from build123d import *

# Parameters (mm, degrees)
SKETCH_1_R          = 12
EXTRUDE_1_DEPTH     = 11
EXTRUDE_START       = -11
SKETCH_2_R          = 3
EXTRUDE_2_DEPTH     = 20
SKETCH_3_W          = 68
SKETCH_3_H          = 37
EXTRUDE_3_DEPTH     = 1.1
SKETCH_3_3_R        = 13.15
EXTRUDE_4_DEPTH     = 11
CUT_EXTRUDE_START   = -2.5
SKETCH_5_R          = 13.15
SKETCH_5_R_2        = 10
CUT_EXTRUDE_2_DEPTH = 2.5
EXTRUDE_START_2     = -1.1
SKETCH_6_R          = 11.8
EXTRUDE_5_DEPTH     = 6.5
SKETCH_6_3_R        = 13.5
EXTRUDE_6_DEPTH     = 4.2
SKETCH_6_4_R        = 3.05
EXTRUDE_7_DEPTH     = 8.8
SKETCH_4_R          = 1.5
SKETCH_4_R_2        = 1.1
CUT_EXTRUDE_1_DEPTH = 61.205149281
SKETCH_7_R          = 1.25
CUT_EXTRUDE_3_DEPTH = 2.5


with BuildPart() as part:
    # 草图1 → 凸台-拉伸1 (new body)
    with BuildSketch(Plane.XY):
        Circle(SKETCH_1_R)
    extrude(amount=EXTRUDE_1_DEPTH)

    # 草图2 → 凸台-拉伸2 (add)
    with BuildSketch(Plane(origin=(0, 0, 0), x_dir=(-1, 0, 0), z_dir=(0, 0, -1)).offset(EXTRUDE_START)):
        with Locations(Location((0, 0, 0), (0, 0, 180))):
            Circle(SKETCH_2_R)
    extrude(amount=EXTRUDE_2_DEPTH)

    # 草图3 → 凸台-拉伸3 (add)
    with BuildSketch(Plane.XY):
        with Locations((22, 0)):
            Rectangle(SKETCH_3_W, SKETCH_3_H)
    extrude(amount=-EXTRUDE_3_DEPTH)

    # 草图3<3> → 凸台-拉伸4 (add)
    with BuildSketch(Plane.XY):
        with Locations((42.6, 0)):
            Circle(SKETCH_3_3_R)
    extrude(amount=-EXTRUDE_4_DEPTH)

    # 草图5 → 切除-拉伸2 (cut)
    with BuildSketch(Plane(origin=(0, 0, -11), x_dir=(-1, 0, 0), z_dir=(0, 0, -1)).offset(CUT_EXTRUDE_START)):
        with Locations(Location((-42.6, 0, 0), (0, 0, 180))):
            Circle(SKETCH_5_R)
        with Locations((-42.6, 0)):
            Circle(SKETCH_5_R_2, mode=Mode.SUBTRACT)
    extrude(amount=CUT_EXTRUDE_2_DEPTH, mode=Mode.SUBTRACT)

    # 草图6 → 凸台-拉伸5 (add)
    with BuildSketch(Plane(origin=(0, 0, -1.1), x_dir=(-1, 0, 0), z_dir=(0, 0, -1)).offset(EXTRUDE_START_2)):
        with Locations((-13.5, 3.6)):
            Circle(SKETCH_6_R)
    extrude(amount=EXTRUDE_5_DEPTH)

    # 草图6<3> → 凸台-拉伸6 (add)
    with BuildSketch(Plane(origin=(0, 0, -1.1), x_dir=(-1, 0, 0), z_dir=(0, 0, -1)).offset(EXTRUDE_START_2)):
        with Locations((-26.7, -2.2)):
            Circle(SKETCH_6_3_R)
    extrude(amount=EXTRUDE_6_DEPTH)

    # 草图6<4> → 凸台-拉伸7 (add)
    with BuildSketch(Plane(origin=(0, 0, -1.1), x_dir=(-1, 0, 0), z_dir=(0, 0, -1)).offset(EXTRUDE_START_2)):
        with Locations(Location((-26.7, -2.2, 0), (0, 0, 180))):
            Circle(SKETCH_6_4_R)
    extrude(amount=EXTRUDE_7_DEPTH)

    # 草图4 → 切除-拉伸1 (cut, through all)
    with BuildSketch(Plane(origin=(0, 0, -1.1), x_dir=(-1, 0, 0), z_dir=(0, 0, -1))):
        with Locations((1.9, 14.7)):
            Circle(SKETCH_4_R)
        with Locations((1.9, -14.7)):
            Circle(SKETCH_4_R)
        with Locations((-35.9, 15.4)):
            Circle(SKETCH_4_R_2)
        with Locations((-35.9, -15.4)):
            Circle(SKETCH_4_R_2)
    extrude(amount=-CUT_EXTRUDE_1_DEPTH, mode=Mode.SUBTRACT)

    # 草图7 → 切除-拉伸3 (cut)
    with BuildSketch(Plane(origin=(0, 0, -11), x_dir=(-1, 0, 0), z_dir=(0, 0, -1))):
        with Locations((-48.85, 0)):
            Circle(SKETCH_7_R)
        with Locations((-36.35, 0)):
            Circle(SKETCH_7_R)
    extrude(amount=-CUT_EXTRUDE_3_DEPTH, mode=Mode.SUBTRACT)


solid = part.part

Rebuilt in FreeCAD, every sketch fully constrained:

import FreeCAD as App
import Part
import Sketcher

doc = App.newDocument("Part")
body = doc.addObject("PartDesign::Body", "Body")

# Sketch on XY plane
sketch1 = body.newObject("Sketcher::SketchObject", "Sketch")
sketch1.AttachmentSupport = (doc.getObject("XY_Plane"), [""])
sketch1.MapMode = "FlatFace"
sketch1.addGeometry(Part.Circle(App.Vector(0, 0, 0), App.Vector(0, 0, 1), 12), False)
sketch1.addConstraint([
    Sketcher.Constraint("Coincident", 0, 3, -1, 1),
    Sketcher.Constraint("Diameter", 0, 24.0),
])
pad1 = body.newObject("PartDesign::Pad", "Pad")
pad1.Profile = sketch1
pad1.Length = 11

# Sketch on XY plane
sketch2 = body.newObject("Sketcher::SketchObject", "Sketch001")
sketch2.AttachmentSupport = (doc.getObject("XY_Plane"), [""])
sketch2.MapMode = "FlatFace"
sketch2.AttachmentOffset = App.Placement(App.Vector(0, 0, 11), App.Rotation())
sketch2.addGeometry(Part.Circle(App.Vector(0, 0, 0), App.Vector(0, 0, 1), 3), False)
sketch2.addConstraint([
    Sketcher.Constraint("Coincident", 0, 3, -1, 1),
    Sketcher.Constraint("Diameter", 0, 6.0),
])
pad2 = body.newObject("PartDesign::Pad", "Pad001")
pad2.Profile = sketch2
pad2.Length = 20
pad2.Reversed = True

# Sketch on XY plane
sketch3 = body.newObject("Sketcher::SketchObject", "Sketch002")
sketch3.AttachmentSupport = (doc.getObject("XY_Plane"), [""])
sketch3.MapMode = "FlatFace"
sketch3.addGeometry([
    Part.LineSegment(App.Vector(-12, 18, 0), App.Vector(-12, -18, 0)),
    Part.LineSegment(App.Vector(-12, -18, 0), App.Vector(56, -18, 0)),
    Part.LineSegment(App.Vector(56, -18, 0), App.Vector(56, 18, 0)),
    Part.LineSegment(App.Vector(56, 18, 0), App.Vector(-12, 18, 0)),
], False)
sketch3.addConstraint([
    Sketcher.Constraint("Coincident", 0, 2, 1, 1),
    Sketcher.Constraint("Coincident", 1, 2, 2, 1),
    Sketcher.Constraint("Coincident", 2, 2, 3, 1),
    Sketcher.Constraint("Coincident", 3, 2, 0, 1),
    Sketcher.Constraint("Vertical", 0),
    Sketcher.Constraint("Horizontal", 1),
    Sketcher.Constraint("Vertical", 2),
    Sketcher.Constraint("Horizontal", 3),
    Sketcher.Constraint("DistanceX", 1, 1, 1, 2, 68.0),
    Sketcher.Constraint("DistanceY", 0, 2, 0, 1, 37.0),
    Sketcher.Constraint("DistanceX", 0, 2, -1, 1, 12.0),
    Sketcher.Constraint("DistanceY", 0, 2, -1, 1, 18.5),
])
pad3 = body.newObject("PartDesign::Pad", "Pad002")
pad3.Profile = sketch3
pad3.Length = 1.1
pad3.Reversed = True

# Sketch on XY plane
sketch4 = body.newObject("Sketcher::SketchObject", "Sketch003")
sketch4.AttachmentSupport = (doc.getObject("XY_Plane"), [""])
sketch4.MapMode = "FlatFace"
sketch4.addGeometry(Part.Circle(App.Vector(43, 0, 0), App.Vector(0, 0, 1), 13), False)
sketch4.addConstraint([
    Sketcher.Constraint("PointOnObject", 0, 3, -1),
    Sketcher.Constraint("Diameter", 0, 26.3),
    Sketcher.Constraint("DistanceX", -1, 1, 0, 3, 42.6),
])
pad4 = body.newObject("PartDesign::Pad", "Pad003")
pad4.Profile = sketch4
pad4.Length = 11
pad4.Reversed = True

# Sketch on XY plane
sketch5 = body.newObject("Sketcher::SketchObject", "Sketch004")
sketch5.AttachmentSupport = (doc.getObject("XY_Plane"), [""])
sketch5.MapMode = "FlatFace"
sketch5.AttachmentOffset = App.Placement(App.Vector(0, 0, -8.5), App.Rotation())
sketch5.addGeometry([
    Part.Circle(App.Vector(43, 0, 0), App.Vector(0, 0, 1), 13),
    Part.Circle(App.Vector(43, 0, 0), App.Vector(0, 0, 1), 10),
], False)
sketch5.addConstraint([
    Sketcher.Constraint("Coincident", 1, 3, 0, 3),
    Sketcher.Constraint("PointOnObject", 0, 3, -1),
    Sketcher.Constraint("Diameter", 1, 20.0),
    Sketcher.Constraint("Diameter", 0, 26.3),
    Sketcher.Constraint("DistanceX", -1, 1, 0, 3, 42.6),
])
pocket1 = body.newObject("PartDesign::Pocket", "Pocket")
pocket1.Profile = sketch5
pocket1.Length = 2.5

# Sketch on XY plane
sketch6 = body.newObject("Sketcher::SketchObject", "Sketch005")
sketch6.AttachmentSupport = (doc.getObject("XY_Plane"), [""])
sketch6.MapMode = "FlatFace"
sketch6.addGeometry(Part.Circle(App.Vector(14, 4, 0), App.Vector(0, 0, 1), 12), False)
sketch6.addConstraint([
    Sketcher.Constraint("Diameter", 0, 23.6),
    Sketcher.Constraint("DistanceX", -1, 1, 0, 3, 13.5),
    Sketcher.Constraint("DistanceY", -1, 1, 0, 3, 3.6),
])
pad5 = body.newObject("PartDesign::Pad", "Pad004")
pad5.Profile = sketch6
pad5.Length = 6.5
pad5.Reversed = True

# Sketch on XY plane
sketch7 = body.newObject("Sketcher::SketchObject", "Sketch006")
sketch7.AttachmentSupport = (doc.getObject("XY_Plane"), [""])
sketch7.MapMode = "FlatFace"
sketch7.addGeometry(Part.Circle(App.Vector(27, -2, 0), App.Vector(0, 0, 1), 14), False)
sketch7.addConstraint([
    Sketcher.Constraint("Diameter", 0, 27.0),
    Sketcher.Constraint("DistanceX", -1, 1, 0, 3, 26.7),
    Sketcher.Constraint("DistanceY", 0, 3, -1, 1, 2.2),
])
pad6 = body.newObject("PartDesign::Pad", "Pad005")
pad6.Profile = sketch7
pad6.Length = 4.2
pad6.Reversed = True

# Sketch on XY plane
sketch8 = body.newObject("Sketcher::SketchObject", "Sketch007")
sketch8.AttachmentSupport = (doc.getObject("XY_Plane"), [""])
sketch8.MapMode = "FlatFace"
sketch8.addGeometry(Part.Circle(App.Vector(26.7, -2.2, 0), App.Vector(0, 0, 1), 3), False)
sketch8.addConstraint([
    Sketcher.Constraint("Diameter", 0, 6.1),
    Sketcher.Constraint("DistanceX", -1, 1, 0, 3, 26.7),
    Sketcher.Constraint("DistanceY", 0, 3, -1, 1, 2.2),
])
pad7 = body.newObject("PartDesign::Pad", "Pad006")
pad7.Profile = sketch8
pad7.Length = 8.8
pad7.Reversed = True

# Sketch on XY plane
sketch9 = body.newObject("Sketcher::SketchObject", "Sketch008")
sketch9.AttachmentSupport = (doc.getObject("XY_Plane"), [""])
sketch9.MapMode = "FlatFace"
sketch9.AttachmentOffset = App.Placement(App.Vector(0, 0, -1.1), App.Rotation())
sketch9.addGeometry([
    Part.Circle(App.Vector(-1.9, 14.7, 0), App.Vector(0, 0, 1), 1.5),
    Part.Circle(App.Vector(-1.9, -14.7, 0), App.Vector(0, 0, 1), 1.5),
    Part.Circle(App.Vector(35.9, 15.4, 0), App.Vector(0, 0, 1), 1.1),
    Part.Circle(App.Vector(35.9, -15.4, 0), App.Vector(0, 0, 1), 1.1),
], False)
sketch9.addConstraint([
    Sketcher.Constraint("Equal", 0, 1),
    Sketcher.Constraint("Equal", 2, 3),
    Sketcher.Constraint("Symmetric", 0, 3, 1, 3, -1),
    Sketcher.Constraint("Symmetric", 2, 3, 3, 3, -1),
    Sketcher.Constraint("Diameter", 0, 3.0),
    Sketcher.Constraint("Diameter", 2, 2.2),
    Sketcher.Constraint("DistanceX", 0, 3, -1, 1, 1.9),
    Sketcher.Constraint("DistanceY", -1, 1, 0, 3, 14.7),
    Sketcher.Constraint("DistanceX", -1, 1, 2, 3, 35.9),
    Sketcher.Constraint("DistanceY", -1, 1, 2, 3, 15.4),
])
pocket2 = body.newObject("PartDesign::Pocket", "Pocket001")
pocket2.Profile = sketch9
pocket2.Type = "ThroughAll"
pocket2.Reversed = True

# Sketch on XY plane
sketch10 = body.newObject("Sketcher::SketchObject", "Sketch009")
sketch10.AttachmentSupport = (doc.getObject("XY_Plane"), [""])
sketch10.MapMode = "FlatFace"
sketch10.AttachmentOffset = App.Placement(App.Vector(0, 0, -11), App.Rotation())
sketch10.addGeometry([
    Part.Circle(App.Vector(48.9, 0, 0), App.Vector(0, 0, 1), 1.2),
    Part.Circle(App.Vector(36.4, 0, 0), App.Vector(0, 0, 1), 1.2),
], False)
sketch10.addConstraint([
    Sketcher.Constraint("Equal", 0, 1),
    Sketcher.Constraint("PointOnObject", 0, 3, -1),
    Sketcher.Constraint("PointOnObject", 1, 3, -1),
    Sketcher.Constraint("Diameter", 0, 2.5),
    Sketcher.Constraint("DistanceX", 1, 3, 0, 3, 12.5),
    Sketcher.Constraint("DistanceX", -1, 1, 0, 3, 48.85),
])
pocket3 = body.newObject("PartDesign::Pocket", "Pocket002")
pocket3.Profile = sketch10
pocket3.Length = 2.5
pocket3.Reversed = True

doc.recompute()
